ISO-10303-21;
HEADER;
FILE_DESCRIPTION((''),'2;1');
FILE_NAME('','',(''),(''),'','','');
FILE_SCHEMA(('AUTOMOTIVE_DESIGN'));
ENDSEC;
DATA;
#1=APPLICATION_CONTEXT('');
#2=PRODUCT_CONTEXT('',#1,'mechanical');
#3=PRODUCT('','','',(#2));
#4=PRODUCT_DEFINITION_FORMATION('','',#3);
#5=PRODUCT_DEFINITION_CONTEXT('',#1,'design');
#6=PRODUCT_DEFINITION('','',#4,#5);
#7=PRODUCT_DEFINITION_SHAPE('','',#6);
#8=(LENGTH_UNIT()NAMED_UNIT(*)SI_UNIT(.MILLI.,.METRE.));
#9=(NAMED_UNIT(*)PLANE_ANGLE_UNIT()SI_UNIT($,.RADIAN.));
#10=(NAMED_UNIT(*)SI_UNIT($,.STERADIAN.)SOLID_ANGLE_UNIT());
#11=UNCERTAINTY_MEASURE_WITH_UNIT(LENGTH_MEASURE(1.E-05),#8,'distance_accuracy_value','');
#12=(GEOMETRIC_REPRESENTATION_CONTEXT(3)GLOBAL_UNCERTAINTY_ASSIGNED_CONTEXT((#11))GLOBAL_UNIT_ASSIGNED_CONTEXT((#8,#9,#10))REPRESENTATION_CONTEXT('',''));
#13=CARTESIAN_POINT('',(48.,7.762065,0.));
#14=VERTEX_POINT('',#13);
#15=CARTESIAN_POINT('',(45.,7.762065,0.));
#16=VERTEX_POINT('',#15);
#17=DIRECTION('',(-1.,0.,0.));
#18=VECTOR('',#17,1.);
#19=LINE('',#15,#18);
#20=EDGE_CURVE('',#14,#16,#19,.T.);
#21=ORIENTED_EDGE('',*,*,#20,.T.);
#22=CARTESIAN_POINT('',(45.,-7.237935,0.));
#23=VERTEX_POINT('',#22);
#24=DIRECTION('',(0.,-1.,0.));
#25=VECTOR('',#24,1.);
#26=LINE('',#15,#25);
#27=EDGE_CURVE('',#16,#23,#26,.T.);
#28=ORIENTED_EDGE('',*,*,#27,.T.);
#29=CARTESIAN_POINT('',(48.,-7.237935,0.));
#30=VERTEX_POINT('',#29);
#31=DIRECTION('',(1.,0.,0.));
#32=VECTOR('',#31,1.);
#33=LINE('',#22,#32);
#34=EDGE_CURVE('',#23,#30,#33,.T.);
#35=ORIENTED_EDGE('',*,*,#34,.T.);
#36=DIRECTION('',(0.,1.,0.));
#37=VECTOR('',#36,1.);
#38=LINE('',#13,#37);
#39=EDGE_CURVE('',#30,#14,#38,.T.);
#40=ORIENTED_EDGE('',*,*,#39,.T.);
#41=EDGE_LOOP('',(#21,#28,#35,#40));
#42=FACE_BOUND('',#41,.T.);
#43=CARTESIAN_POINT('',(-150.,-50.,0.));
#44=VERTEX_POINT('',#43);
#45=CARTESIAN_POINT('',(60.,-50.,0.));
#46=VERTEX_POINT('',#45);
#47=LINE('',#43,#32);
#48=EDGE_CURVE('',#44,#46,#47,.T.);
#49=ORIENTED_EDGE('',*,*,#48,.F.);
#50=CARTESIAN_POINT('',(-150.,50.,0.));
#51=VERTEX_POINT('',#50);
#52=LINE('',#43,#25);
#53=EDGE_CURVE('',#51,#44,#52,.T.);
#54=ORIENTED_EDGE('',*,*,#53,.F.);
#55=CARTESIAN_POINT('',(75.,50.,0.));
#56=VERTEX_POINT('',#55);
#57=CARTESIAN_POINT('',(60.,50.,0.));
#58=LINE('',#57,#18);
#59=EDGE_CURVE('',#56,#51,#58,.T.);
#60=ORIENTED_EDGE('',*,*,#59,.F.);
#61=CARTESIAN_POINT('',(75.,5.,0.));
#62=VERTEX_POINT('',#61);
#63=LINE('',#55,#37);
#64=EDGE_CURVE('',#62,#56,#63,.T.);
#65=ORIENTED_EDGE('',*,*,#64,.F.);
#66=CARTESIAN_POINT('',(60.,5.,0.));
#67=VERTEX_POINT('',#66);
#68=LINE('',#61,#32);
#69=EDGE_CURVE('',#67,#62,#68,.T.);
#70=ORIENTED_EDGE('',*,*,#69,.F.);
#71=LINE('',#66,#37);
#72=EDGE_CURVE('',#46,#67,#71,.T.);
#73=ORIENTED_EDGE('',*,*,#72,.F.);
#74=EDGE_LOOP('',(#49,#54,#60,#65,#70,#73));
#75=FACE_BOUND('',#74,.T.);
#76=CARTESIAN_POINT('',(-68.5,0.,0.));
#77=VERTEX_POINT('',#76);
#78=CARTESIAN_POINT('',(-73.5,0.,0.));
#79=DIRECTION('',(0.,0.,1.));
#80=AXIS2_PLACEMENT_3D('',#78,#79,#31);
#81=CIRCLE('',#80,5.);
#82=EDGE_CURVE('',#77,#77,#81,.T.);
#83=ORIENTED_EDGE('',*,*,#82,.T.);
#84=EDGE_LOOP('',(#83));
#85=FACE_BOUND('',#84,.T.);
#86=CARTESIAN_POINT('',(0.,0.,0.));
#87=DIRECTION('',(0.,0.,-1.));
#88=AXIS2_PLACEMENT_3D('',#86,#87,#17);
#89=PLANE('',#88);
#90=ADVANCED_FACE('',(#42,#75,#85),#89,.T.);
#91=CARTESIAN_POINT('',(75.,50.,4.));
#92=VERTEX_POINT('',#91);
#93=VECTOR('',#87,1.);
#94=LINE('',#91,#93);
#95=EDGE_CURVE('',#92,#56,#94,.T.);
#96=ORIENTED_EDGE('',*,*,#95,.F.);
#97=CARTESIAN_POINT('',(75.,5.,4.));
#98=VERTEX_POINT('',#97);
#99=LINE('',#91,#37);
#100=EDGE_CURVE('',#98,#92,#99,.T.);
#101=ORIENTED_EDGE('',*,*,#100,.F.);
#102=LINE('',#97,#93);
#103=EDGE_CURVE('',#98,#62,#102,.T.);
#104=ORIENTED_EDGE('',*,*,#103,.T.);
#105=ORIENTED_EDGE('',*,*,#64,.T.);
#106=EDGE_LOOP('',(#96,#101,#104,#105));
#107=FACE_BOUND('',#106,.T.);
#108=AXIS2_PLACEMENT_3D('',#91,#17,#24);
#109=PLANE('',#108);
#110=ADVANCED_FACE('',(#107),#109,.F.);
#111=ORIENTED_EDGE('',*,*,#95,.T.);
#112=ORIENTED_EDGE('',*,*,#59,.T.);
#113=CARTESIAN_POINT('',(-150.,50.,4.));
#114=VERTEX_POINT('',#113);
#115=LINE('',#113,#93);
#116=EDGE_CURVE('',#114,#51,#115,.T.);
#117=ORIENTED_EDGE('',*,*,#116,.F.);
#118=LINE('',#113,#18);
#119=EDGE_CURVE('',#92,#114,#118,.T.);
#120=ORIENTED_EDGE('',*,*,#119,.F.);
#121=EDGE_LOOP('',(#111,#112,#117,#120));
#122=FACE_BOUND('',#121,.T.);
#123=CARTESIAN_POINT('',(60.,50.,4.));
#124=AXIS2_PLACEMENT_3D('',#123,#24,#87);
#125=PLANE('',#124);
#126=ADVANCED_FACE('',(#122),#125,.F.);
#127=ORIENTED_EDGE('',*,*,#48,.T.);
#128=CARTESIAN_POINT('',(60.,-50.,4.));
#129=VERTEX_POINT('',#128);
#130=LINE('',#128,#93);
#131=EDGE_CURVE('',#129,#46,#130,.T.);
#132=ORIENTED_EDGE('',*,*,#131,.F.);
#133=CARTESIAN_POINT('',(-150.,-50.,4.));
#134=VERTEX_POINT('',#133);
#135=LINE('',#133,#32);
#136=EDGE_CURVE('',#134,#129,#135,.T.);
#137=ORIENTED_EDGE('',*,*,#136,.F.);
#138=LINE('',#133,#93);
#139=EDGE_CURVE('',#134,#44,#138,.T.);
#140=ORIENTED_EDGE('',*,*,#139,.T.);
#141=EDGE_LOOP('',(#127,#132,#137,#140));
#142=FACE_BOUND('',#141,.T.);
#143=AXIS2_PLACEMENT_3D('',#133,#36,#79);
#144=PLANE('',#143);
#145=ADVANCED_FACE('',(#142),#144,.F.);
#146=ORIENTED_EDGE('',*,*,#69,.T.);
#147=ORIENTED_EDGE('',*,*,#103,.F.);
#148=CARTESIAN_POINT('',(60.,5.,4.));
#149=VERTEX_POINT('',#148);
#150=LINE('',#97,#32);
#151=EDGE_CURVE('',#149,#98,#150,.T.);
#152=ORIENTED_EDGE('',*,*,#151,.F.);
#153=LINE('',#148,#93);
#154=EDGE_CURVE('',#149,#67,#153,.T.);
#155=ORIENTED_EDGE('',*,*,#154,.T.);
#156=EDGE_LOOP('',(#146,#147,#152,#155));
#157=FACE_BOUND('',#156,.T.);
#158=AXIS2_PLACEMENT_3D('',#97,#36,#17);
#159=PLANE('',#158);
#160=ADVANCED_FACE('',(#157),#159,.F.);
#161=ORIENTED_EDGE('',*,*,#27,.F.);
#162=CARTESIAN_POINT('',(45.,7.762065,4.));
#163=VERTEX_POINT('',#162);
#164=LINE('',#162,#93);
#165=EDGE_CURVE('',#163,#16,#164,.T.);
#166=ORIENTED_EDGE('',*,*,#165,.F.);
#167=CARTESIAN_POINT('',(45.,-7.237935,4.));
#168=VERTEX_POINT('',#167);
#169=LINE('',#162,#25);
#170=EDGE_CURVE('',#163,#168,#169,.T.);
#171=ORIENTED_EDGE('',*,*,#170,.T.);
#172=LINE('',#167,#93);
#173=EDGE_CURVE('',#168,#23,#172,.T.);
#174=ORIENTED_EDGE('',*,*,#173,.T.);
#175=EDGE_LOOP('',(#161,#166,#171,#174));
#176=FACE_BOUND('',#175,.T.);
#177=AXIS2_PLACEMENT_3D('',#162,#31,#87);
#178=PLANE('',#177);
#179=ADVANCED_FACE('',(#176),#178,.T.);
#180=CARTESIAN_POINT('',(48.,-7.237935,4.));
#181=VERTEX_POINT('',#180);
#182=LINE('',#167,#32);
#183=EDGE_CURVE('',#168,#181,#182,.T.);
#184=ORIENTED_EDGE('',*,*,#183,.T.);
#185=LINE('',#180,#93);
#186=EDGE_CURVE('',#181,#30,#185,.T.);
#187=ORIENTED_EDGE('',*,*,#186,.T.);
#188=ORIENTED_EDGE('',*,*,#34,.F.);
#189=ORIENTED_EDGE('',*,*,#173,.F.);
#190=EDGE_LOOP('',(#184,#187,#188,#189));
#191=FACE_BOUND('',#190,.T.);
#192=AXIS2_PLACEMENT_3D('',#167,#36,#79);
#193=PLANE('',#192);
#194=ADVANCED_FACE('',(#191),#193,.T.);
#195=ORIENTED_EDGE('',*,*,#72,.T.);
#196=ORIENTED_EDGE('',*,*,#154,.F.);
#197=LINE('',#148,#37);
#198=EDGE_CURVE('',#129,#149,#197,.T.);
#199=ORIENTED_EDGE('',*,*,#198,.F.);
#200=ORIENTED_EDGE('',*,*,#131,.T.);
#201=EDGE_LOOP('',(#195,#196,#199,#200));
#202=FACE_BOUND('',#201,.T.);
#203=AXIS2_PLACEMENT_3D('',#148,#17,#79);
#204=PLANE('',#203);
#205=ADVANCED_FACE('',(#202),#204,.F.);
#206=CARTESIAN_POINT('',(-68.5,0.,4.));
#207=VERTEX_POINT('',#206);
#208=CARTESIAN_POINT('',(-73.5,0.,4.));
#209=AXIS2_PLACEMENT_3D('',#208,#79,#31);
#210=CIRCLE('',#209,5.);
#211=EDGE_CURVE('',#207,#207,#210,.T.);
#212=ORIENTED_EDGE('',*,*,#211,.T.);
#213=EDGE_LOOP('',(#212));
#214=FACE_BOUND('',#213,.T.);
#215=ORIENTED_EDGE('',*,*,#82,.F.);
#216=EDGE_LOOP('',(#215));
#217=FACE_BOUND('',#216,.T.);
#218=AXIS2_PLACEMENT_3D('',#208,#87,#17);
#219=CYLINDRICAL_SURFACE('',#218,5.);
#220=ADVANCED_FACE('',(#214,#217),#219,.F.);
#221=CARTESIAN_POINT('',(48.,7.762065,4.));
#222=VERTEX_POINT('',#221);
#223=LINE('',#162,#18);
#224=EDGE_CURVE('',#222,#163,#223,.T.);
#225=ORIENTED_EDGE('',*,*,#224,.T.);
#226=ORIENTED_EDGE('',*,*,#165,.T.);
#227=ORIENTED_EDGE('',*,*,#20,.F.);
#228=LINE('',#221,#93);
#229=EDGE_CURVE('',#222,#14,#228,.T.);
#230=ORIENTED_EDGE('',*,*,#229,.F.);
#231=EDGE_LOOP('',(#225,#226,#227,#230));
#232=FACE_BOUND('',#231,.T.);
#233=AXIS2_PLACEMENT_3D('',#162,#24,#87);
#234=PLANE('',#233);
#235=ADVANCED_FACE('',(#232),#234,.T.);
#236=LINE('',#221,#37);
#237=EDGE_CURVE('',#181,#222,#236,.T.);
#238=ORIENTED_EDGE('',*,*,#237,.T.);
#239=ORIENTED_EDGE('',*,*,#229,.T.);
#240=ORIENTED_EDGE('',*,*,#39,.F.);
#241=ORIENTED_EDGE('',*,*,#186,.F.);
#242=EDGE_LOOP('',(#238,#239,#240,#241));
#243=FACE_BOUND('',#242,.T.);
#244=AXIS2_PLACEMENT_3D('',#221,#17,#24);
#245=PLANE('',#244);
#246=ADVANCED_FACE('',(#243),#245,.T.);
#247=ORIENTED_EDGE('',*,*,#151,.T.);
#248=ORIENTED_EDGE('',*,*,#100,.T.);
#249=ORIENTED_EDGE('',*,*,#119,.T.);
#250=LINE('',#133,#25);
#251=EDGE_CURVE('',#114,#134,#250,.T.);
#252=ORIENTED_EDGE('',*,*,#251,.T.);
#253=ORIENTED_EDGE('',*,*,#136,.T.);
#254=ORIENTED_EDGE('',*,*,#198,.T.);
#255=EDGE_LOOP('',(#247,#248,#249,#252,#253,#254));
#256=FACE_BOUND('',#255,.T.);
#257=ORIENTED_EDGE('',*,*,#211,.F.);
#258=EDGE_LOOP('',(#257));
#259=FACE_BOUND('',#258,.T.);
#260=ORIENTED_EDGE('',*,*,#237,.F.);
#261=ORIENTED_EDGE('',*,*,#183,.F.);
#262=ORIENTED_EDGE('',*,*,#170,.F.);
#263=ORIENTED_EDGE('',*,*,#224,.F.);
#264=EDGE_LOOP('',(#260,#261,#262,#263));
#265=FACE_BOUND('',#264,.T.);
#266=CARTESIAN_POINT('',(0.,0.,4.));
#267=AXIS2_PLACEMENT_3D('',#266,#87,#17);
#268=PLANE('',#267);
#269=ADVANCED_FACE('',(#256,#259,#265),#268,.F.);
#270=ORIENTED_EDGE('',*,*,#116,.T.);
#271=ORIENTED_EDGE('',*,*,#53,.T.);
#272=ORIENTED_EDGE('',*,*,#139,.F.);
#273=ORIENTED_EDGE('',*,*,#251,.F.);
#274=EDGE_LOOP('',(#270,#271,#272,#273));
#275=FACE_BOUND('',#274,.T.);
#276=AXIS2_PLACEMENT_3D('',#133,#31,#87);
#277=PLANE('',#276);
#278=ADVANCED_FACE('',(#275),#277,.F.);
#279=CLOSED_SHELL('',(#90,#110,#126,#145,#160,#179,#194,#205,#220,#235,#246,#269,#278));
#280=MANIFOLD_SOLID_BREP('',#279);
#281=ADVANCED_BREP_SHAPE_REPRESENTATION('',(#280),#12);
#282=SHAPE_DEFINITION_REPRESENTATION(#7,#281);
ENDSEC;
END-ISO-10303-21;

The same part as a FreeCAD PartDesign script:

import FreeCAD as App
import Part
import Sketcher
from FreeCAD import Vector


def add_polygon(sketch, points):
    """Adds a closed chain of lines whose ends are joined by coincident constraints."""
    first, n = sketch.GeometryCount, len(points)
    for a, b in zip(points, points[1:] + points[:1]):
        sketch.addGeometry(Part.LineSegment(App.Vector(*a, 0), App.Vector(*b, 0)), False)
    for i in range(n):
        sketch.addConstraint(Sketcher.Constraint("Coincident", first + i, 2, first + (i + 1) % n, 1))

doc = App.newDocument("Part")
body = doc.addObject("PartDesign::Body", "Body")

# Sketch on XY plane
sketch1 = body.newObject("Sketcher::SketchObject", "Sketch")
sketch1.AttachmentSupport = (doc.getObject("XY_Plane"), [""])
sketch1.MapMode = "FlatFace"
add_polygon(sketch1, [(75, 50), (-150, 50), (-150, -50), (60, -50), (60, 5), (75, 5)])  # lines 0-5
sketch1.addGeometry(Part.Circle(Vector(-73.5, 0, 0), Vector(0, 0, 1), 5), False)  # 6
add_polygon(sketch1, [(45, -7.2), (45, 7.8), (48, 7.8), (48, -7.2)])  # lines 7-10
sketch1.addConstraint([
    Sketcher.Constraint("Horizontal", 0),
    Sketcher.Constraint("Vertical", 1),
    Sketcher.Constraint("Horizontal", 2),
    Sketcher.Constraint("Vertical", 3),
    Sketcher.Constraint("Horizontal", 4),
    Sketcher.Constraint("Vertical", 5),
    Sketcher.Constraint("Vertical", 7),
    Sketcher.Constraint("Horizontal", 8),
    Sketcher.Constraint("Vertical", 9),
    Sketcher.Constraint("Horizontal", 10),
    Sketcher.Constraint("PointOnObject", 6, 3, -1),
    Sketcher.Constraint("Equal", 4, 7),
    Sketcher.Constraint("Diameter", 6, 10.0),
    Sketcher.Constraint("DistanceX", 0, 2, 0, 1, 225.0),
    Sketcher.Constraint("DistanceX", 2, 1, 2, 2, 210.0),
    Sketcher.Constraint("DistanceX", 8, 1, 8, 2, 3.0),
    Sketcher.Constraint("DistanceY", 1, 2, 1, 1, 100.0),
    Sketcher.Constraint("DistanceY", 3, 1, 3, 2, 55.0),
    Sketcher.Constraint("DistanceX", 0, 2, -1, 1, 150.0),
    Sketcher.Constraint("DistanceY", -1, 1, 0, 2, 50.0),
    Sketcher.Constraint("DistanceX", -1, 1, 7, 2, 45.0),
    Sketcher.Constraint("DistanceX", 6, 3, -1, 1, 73.5),
    Sketcher.Constraint("DistanceY", -1, 1, 7, 2, 7.762065),
])
pad1 = body.newObject("PartDesign::Pad", "Pad")
pad1.Profile = sketch1
pad1.Length = 4

doc.recompute()
